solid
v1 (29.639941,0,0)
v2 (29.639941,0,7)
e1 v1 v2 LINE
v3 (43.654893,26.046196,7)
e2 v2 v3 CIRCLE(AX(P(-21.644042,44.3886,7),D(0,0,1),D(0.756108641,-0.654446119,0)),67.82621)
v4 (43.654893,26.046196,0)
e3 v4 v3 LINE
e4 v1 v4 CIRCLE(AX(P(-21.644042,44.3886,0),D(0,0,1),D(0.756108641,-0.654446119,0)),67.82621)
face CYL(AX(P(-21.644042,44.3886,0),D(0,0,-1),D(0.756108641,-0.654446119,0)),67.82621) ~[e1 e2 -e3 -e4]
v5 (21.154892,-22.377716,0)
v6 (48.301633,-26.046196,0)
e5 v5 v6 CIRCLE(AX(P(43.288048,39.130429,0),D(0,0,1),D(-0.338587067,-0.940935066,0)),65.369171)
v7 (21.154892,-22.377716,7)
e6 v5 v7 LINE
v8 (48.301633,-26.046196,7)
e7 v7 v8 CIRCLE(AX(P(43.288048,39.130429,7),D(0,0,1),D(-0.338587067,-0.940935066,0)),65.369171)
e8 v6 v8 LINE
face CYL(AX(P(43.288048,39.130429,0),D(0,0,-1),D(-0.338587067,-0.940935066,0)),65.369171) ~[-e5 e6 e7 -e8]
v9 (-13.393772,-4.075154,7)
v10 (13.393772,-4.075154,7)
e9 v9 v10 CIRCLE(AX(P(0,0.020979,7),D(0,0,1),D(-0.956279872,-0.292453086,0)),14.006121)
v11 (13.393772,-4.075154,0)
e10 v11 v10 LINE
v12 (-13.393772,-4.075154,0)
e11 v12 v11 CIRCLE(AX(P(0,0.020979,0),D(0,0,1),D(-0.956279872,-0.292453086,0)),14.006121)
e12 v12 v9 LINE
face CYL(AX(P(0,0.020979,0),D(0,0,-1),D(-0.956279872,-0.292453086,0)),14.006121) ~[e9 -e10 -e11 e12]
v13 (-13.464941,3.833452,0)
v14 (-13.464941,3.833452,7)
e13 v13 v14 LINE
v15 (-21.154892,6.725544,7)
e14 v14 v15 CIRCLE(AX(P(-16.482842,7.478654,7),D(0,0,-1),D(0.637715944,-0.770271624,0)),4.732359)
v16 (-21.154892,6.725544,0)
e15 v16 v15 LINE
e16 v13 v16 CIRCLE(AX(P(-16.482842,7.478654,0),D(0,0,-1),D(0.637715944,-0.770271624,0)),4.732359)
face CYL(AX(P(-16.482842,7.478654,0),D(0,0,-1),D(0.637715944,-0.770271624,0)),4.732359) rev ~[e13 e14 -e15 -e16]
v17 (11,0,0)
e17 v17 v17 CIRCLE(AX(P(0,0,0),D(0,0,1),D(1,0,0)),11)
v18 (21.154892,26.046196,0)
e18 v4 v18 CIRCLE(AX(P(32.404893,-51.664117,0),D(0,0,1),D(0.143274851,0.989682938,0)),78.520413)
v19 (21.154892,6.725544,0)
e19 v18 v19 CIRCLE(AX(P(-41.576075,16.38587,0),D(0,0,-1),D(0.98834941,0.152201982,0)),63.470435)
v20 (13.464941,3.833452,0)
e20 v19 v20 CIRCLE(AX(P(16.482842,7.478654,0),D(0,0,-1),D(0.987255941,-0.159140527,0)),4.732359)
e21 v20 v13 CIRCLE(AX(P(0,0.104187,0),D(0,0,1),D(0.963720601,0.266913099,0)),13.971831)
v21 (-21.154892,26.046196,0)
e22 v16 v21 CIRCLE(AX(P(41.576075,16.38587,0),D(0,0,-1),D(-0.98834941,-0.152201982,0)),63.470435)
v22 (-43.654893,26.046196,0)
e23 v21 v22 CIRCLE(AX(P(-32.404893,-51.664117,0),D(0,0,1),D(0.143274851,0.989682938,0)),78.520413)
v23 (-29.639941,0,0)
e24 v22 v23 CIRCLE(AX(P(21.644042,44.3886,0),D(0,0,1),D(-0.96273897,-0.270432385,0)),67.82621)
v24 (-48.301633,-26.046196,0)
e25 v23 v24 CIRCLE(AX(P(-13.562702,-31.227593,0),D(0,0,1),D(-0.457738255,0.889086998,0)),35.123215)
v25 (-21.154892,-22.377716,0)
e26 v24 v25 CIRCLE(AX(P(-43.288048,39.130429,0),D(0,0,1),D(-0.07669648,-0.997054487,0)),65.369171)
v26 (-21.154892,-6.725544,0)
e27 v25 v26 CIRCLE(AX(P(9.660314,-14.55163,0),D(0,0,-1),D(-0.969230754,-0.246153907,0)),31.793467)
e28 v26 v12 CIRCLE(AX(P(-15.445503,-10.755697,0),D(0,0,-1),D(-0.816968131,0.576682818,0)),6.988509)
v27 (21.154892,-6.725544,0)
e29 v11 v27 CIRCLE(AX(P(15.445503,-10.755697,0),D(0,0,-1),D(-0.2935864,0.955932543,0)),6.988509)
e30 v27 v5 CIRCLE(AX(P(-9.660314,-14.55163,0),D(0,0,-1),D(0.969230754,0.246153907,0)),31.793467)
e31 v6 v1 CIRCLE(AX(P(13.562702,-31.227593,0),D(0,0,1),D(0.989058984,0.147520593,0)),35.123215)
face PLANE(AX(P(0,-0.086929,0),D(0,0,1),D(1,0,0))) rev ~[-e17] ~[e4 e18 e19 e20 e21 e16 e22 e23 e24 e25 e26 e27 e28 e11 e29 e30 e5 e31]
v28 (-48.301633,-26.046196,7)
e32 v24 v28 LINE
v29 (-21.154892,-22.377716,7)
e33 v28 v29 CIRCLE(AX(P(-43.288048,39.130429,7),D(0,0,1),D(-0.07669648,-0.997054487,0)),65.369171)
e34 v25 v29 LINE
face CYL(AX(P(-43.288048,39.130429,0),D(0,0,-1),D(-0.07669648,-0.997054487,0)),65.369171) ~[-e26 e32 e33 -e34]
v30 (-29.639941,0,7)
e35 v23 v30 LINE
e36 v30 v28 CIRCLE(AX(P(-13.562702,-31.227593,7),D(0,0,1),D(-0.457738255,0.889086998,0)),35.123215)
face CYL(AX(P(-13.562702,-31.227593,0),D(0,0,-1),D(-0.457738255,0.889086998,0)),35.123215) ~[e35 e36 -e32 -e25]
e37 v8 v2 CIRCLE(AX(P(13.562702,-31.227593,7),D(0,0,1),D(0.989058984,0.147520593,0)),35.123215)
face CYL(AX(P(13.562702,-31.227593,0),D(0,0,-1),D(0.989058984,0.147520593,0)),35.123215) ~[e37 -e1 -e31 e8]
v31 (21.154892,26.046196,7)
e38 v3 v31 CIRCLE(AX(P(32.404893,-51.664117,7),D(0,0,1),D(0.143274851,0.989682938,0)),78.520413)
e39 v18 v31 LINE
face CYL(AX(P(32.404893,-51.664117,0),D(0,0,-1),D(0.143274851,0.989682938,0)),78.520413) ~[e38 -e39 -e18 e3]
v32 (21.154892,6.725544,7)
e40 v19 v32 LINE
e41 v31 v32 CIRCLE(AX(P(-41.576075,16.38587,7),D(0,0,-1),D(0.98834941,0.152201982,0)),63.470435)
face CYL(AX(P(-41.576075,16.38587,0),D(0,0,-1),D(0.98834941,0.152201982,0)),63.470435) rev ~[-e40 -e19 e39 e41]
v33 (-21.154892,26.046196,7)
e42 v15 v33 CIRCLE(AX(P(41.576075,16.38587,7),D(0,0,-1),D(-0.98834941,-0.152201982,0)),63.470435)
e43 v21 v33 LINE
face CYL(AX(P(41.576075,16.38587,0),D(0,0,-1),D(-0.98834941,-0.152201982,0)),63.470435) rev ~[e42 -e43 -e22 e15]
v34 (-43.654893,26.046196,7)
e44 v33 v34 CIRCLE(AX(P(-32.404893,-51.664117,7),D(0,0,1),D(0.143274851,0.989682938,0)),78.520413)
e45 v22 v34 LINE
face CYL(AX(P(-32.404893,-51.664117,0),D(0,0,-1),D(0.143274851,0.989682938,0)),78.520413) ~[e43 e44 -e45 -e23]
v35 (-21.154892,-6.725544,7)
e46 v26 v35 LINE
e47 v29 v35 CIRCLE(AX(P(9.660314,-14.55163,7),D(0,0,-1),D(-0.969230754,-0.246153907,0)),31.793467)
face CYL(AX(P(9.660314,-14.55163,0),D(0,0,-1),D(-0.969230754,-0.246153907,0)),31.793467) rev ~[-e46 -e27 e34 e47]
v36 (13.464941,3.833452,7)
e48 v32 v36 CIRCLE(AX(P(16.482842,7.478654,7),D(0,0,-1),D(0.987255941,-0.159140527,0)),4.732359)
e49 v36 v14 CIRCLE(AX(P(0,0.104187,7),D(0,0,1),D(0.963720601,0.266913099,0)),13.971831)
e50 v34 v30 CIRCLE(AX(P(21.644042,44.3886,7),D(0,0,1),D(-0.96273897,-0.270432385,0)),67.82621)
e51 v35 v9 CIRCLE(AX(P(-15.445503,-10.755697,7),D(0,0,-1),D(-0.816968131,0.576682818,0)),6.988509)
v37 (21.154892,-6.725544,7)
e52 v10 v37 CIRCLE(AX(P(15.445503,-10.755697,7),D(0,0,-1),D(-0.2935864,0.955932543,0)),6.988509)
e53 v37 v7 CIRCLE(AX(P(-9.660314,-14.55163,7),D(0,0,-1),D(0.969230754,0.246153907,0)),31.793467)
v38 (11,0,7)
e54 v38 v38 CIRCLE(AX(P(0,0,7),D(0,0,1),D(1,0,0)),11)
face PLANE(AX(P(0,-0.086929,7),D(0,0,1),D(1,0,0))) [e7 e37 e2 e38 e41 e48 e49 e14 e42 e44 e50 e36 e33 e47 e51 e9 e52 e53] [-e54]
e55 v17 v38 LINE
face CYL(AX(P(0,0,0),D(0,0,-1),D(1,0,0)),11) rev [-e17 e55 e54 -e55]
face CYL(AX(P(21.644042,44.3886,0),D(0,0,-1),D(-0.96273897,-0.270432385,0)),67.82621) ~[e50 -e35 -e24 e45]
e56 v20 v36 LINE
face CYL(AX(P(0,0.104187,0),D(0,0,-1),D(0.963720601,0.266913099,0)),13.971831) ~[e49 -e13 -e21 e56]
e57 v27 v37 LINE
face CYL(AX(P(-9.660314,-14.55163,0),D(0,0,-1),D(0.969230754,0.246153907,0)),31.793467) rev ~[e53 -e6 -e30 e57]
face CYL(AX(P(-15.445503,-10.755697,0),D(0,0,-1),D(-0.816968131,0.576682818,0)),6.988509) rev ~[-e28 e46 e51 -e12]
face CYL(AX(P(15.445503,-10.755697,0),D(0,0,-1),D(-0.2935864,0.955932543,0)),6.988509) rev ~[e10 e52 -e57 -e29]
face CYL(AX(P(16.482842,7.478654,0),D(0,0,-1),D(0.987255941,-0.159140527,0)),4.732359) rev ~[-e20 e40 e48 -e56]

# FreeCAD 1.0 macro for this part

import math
import FreeCAD as App
import Part
import Sketcher
Q = App.Units.Quantity

doc = App.newDocument("Part")
body = doc.addObject("PartDesign::Body", "Body")

sketch1 = body.newObject("Sketcher::SketchObject", "Sketch")
sketch1.AttachmentSupport = (doc.getObject("XY_Plane"), [""])
sketch1.MapMode = "FlatFace"
sketch1.addGeometry(Part.ArcOfCircle(Part.Circle(App.Vector(-16.5, 7.5, 0), App.Vector(0, 0, 1), 4.7), math.radians(-171), math.radians(-50)), False)
sketch1.addGeometry(Part.ArcOfCircle(Part.Circle(App.Vector(41.6, 16.4, 0), App.Vector(0, 0, 1), 63.5), math.radians(171.25), math.radians(188.75)), False)
sketch1.addGeometry(Part.ArcOfCircle(Part.Circle(App.Vector(-32.4, -51.7, 0), App.Vector(0, 0, 1), 78.5), math.radians(81.76), math.radians(98.24)), False)
sketch1.addGeometry(Part.ArcOfCircle(Part.Circle(App.Vector(21.6, 44.4, 0), App.Vector(0, 0, 1), 67.8), math.radians(-164), math.radians(-139)), False)
sketch1.addGeometry(Part.ArcOfCircle(Part.Circle(App.Vector(-13.6, -31.2, 0), App.Vector(0, 0, 1), 35.1), math.radians(117), math.radians(172)), False)
sketch1.addGeometry(Part.ArcOfCircle(Part.Circle(App.Vector(-43.3, 39.1, 0), App.Vector(0, 0, 1), 65.4), math.radians(-94), math.radians(-70)), False)
sketch1.addGeometry(Part.ArcOfCircle(Part.Circle(App.Vector(9.7, -14.6, 0), App.Vector(0, 0, 1), 31.8), math.radians(166), math.radians(194)), False)
sketch1.addGeometry(Part.ArcOfCircle(Part.Circle(App.Vector(-15.4, -10.8, 0), App.Vector(0, 0, 1), 7), math.radians(73), math.radians(145)), False)
sketch1.addGeometry(Part.ArcOfCircle(Part.Circle(App.Vector(0, 0, 0), App.Vector(0, 0, 1), 14), math.radians(-163), math.radians(-17)), False)
sketch1.addGeometry(Part.ArcOfCircle(Part.Circle(App.Vector(15.4, -10.8, 0), App.Vector(0, 0, 1), 7), math.radians(35), math.radians(107)), False)
sketch1.addGeometry(Part.ArcOfCircle(Part.Circle(App.Vector(-9.7, -14.6, 0), App.Vector(0, 0, 1), 31.8), math.radians(-14), math.radians(14)), False)
sketch1.addGeometry(Part.ArcOfCircle(Part.Circle(App.Vector(43.3, 39.1, 0), App.Vector(0, 0, 1), 65.4), math.radians(-110), math.radians(-86)), False)
sketch1.addGeometry(Part.ArcOfCircle(Part.Circle(App.Vector(13.6, -31.2, 0), App.Vector(0, 0, 1), 35.1), math.radians(8), math.radians(63)), False)
sketch1.addGeometry(Part.ArcOfCircle(Part.Circle(App.Vector(-21.6, 44.4, 0), App.Vector(0, 0, 1), 67.8), math.radians(-41), math.radians(-16)), False)
sketch1.addGeometry(Part.ArcOfCircle(Part.Circle(App.Vector(32.4, -51.7, 0), App.Vector(0, 0, 1), 78.5), math.radians(81.76), math.radians(98.24)), False)
sketch1.addGeometry(Part.ArcOfCircle(Part.Circle(App.Vector(-41.6, 16.4, 0), App.Vector(0, 0, 1), 63.5), math.radians(-8.75), math.radians(8.75)), False)
sketch1.addGeometry(Part.ArcOfCircle(Part.Circle(App.Vector(16.5, 7.5, 0), App.Vector(0, 0, 1), 4.7), math.radians(-130), math.radians(-9)), False)
sketch1.addGeometry(Part.ArcOfCircle(Part.Circle(App.Vector(0, 0.1, 0), App.Vector(0, 0, 1), 14), math.radians(15), math.radians(165)), False)
sketch1.addGeometry(Part.Circle(App.Vector(0, 0, 0), App.Vector(0, 0, 1), 11), False)
sketch1.addConstraint(Sketcher.Constraint("Coincident", 0, 1, 1, 2))
sketch1.addConstraint(Sketcher.Constraint("Coincident", 1, 1, 2, 1))
sketch1.addConstraint(Sketcher.Constraint("Coincident", 2, 2, 3, 1))
sketch1.addConstraint(Sketcher.Constraint("Coincident", 3, 2, 4, 1))
sketch1.addConstraint(Sketcher.Constraint("Coincident", 4, 2, 5, 1))
sketch1.addConstraint(Sketcher.Constraint("Coincident", 5, 2, 6, 2))
sketch1.addConstraint(Sketcher.Constraint("Coincident", 6, 1, 7, 2))
sketch1.addConstraint(Sketcher.Constraint("Coincident", 7, 1, 8, 1))
sketch1.addConstraint(Sketcher.Constraint("Coincident", 8, 2, 9, 2))
sketch1.addConstraint(Sketcher.Constraint("Coincident", 9, 1, 10, 2))
sketch1.addConstraint(Sketcher.Constraint("Coincident", 10, 1, 11, 1))
sketch1.addConstraint(Sketcher.Constraint("Coincident", 11, 2, 12, 1))
sketch1.addConstraint(Sketcher.Constraint("Coincident", 12, 2, 13, 1))
sketch1.addConstraint(Sketcher.Constraint("Coincident", 13, 2, 14, 1))
sketch1.addConstraint(Sketcher.Constraint("Coincident", 14, 2, 15, 2))
sketch1.addConstraint(Sketcher.Constraint("Coincident", 15, 1, 16, 2))
sketch1.addConstraint(Sketcher.Constraint("Coincident", 16, 1, 17, 1))
sketch1.addConstraint(Sketcher.Constraint("Coincident", 17, 2, 0, 2))
sketch1.addConstraint(Sketcher.Constraint("Coincident", 18, 3, -1, 1))
sketch1.addConstraint(Sketcher.Constraint("Equal", 7, 9))
sketch1.addConstraint(Sketcher.Constraint("Equal", 6, 10))
sketch1.addConstraint(Sketcher.Constraint("Equal", 5, 11))
sketch1.addConstraint(Sketcher.Constraint("Equal", 4, 12))
sketch1.addConstraint(Sketcher.Constraint("Equal", 3, 13))
sketch1.addConstraint(Sketcher.Constraint("Equal", 2, 14))
sketch1.addConstraint(Sketcher.Constraint("Equal", 1, 15))
sketch1.addConstraint(Sketcher.Constraint("Equal", 0, 16))
sketch1.addConstraint(Sketcher.Constraint("Symmetric", 0, 1, 9, 1, -1, 1))
sketch1.addConstraint(Sketcher.Constraint("Symmetric", 3, 2, 12, 2, -1, 1))
sketch1.addConstraint(Sketcher.Constraint("Symmetric", 6, 1, 15, 1, -1, 1))
sketch1.addConstraint(Sketcher.Constraint("Symmetric", 7, 3, 9, 3, -2))
sketch1.addConstraint(Sketcher.Constraint("Symmetric", 6, 3, 10, 3, -2))
sketch1.addConstraint(Sketcher.Constraint("Symmetric", 5, 3, 11, 3, -2))
sketch1.addConstraint(Sketcher.Constraint("Symmetric", 4, 3, 12, 3, -2))
sketch1.addConstraint(Sketcher.Constraint("Symmetric", 2, 3, 14, 3, -2))
sketch1.addConstraint(Sketcher.Constraint("Symmetric", 16, 1, 17, 2, -2))
sketch1.addConstraint(Sketcher.Constraint("PointOnObject", 8, 3, -2))
sketch1.addConstraint(Sketcher.Constraint("Horizontal", 3, 3, 13, 3))
sketch1.addConstraint(Sketcher.Constraint("Horizontal", 1, 3, 15, 3))
sketch1.addConstraint(Sketcher.Constraint("Horizontal", 1, 1, 2, 2))
sketch1.addConstraint(Sketcher.Constraint("Vertical", 0, 1, 1, 1))
sketch1.addConstraint(Sketcher.Constraint("Vertical", 1, 1, 5, 2))
sketch1.addConstraint(Sketcher.Constraint("Diameter", 18, Q("22 mm")))
sketch1.addConstraint(Sketcher.Constraint("DistanceX", 2, 2, 1, 1, Q("22.500001 mm")))
sketch1.addConstraint(Sketcher.Constraint("Radius", 0, Q("4.732359 mm")))
sketch1.addConstraint(Sketcher.Constraint("Radius", 3, Q("67.82621 mm")))
sketch1.addConstraint(Sketcher.Constraint("Radius", 5, Q("65.369171 mm")))
sketch1.addConstraint(Sketcher.Constraint("Radius", 7, Q("6.988509 mm")))
sketch1.addConstraint(Sketcher.Constraint("Radius", 8, Q("14.006121 mm")))
sketch1.addConstraint(Sketcher.Constraint("Radius", 17, Q("13.971831 mm")))
sketch1.addConstraint(Sketcher.Constraint("Radius", 1, Q("63.470435 mm")))
sketch1.addConstraint(Sketcher.Constraint("Radius", 2, Q("78.520413 mm")))
sketch1.addConstraint(Sketcher.Constraint("Radius", 4, Q("35.123215 mm")))
sketch1.addConstraint(Sketcher.Constraint("Radius", 6, Q("31.793467 mm")))
sketch1.addConstraint(Sketcher.Constraint("DistanceY", -1, 1, 3, 3, Q("44.3886 mm")))
sketch1.addConstraint(Sketcher.Constraint("DistanceY", 6, 3, 1, 3, Q("30.9375 mm")))
sketch1.addConstraint(Sketcher.Constraint("DistanceX", 7, 3, 4, 3, Q("1.882801 mm")))
sketch1.addConstraint(Sketcher.Constraint("DistanceX", 13, 3, 0, 3, Q("5.1612 mm")))
sketch1.addConstraint(Sketcher.Constraint("DistanceX", 3, 2, 0, 3, Q("13.157099 mm")))
sketch1.addConstraint(Sketcher.Constraint("DistanceY", 4, 2, 7, 3, Q("15.290499 mm")))
sketch1.addConstraint(Sketcher.Constraint("DistanceY", 6, 1, 0, 3, Q("14.204198 mm")))
sketch1.addConstraint(Sketcher.Constraint("DistanceY", 8, 2, 15, 1, Q("10.800698 mm")))
sketch1.addConstraint(Sketcher.Constraint("DistanceX", 16, 1, 16, 3, Q("3.017901 mm")))
sketch1.addConstraint(Sketcher.Constraint("DistanceY", -1, 1, 1, 3, Q("16.38587 mm")))
sketch1.addConstraint(Sketcher.Constraint("DistanceY", -1, 1, 5, 3, Q("39.130429 mm")))
pad1 = body.newObject("PartDesign::Pad", "Pad")
pad1.Profile = sketch1
pad1.Length = 7

doc.recompute()
